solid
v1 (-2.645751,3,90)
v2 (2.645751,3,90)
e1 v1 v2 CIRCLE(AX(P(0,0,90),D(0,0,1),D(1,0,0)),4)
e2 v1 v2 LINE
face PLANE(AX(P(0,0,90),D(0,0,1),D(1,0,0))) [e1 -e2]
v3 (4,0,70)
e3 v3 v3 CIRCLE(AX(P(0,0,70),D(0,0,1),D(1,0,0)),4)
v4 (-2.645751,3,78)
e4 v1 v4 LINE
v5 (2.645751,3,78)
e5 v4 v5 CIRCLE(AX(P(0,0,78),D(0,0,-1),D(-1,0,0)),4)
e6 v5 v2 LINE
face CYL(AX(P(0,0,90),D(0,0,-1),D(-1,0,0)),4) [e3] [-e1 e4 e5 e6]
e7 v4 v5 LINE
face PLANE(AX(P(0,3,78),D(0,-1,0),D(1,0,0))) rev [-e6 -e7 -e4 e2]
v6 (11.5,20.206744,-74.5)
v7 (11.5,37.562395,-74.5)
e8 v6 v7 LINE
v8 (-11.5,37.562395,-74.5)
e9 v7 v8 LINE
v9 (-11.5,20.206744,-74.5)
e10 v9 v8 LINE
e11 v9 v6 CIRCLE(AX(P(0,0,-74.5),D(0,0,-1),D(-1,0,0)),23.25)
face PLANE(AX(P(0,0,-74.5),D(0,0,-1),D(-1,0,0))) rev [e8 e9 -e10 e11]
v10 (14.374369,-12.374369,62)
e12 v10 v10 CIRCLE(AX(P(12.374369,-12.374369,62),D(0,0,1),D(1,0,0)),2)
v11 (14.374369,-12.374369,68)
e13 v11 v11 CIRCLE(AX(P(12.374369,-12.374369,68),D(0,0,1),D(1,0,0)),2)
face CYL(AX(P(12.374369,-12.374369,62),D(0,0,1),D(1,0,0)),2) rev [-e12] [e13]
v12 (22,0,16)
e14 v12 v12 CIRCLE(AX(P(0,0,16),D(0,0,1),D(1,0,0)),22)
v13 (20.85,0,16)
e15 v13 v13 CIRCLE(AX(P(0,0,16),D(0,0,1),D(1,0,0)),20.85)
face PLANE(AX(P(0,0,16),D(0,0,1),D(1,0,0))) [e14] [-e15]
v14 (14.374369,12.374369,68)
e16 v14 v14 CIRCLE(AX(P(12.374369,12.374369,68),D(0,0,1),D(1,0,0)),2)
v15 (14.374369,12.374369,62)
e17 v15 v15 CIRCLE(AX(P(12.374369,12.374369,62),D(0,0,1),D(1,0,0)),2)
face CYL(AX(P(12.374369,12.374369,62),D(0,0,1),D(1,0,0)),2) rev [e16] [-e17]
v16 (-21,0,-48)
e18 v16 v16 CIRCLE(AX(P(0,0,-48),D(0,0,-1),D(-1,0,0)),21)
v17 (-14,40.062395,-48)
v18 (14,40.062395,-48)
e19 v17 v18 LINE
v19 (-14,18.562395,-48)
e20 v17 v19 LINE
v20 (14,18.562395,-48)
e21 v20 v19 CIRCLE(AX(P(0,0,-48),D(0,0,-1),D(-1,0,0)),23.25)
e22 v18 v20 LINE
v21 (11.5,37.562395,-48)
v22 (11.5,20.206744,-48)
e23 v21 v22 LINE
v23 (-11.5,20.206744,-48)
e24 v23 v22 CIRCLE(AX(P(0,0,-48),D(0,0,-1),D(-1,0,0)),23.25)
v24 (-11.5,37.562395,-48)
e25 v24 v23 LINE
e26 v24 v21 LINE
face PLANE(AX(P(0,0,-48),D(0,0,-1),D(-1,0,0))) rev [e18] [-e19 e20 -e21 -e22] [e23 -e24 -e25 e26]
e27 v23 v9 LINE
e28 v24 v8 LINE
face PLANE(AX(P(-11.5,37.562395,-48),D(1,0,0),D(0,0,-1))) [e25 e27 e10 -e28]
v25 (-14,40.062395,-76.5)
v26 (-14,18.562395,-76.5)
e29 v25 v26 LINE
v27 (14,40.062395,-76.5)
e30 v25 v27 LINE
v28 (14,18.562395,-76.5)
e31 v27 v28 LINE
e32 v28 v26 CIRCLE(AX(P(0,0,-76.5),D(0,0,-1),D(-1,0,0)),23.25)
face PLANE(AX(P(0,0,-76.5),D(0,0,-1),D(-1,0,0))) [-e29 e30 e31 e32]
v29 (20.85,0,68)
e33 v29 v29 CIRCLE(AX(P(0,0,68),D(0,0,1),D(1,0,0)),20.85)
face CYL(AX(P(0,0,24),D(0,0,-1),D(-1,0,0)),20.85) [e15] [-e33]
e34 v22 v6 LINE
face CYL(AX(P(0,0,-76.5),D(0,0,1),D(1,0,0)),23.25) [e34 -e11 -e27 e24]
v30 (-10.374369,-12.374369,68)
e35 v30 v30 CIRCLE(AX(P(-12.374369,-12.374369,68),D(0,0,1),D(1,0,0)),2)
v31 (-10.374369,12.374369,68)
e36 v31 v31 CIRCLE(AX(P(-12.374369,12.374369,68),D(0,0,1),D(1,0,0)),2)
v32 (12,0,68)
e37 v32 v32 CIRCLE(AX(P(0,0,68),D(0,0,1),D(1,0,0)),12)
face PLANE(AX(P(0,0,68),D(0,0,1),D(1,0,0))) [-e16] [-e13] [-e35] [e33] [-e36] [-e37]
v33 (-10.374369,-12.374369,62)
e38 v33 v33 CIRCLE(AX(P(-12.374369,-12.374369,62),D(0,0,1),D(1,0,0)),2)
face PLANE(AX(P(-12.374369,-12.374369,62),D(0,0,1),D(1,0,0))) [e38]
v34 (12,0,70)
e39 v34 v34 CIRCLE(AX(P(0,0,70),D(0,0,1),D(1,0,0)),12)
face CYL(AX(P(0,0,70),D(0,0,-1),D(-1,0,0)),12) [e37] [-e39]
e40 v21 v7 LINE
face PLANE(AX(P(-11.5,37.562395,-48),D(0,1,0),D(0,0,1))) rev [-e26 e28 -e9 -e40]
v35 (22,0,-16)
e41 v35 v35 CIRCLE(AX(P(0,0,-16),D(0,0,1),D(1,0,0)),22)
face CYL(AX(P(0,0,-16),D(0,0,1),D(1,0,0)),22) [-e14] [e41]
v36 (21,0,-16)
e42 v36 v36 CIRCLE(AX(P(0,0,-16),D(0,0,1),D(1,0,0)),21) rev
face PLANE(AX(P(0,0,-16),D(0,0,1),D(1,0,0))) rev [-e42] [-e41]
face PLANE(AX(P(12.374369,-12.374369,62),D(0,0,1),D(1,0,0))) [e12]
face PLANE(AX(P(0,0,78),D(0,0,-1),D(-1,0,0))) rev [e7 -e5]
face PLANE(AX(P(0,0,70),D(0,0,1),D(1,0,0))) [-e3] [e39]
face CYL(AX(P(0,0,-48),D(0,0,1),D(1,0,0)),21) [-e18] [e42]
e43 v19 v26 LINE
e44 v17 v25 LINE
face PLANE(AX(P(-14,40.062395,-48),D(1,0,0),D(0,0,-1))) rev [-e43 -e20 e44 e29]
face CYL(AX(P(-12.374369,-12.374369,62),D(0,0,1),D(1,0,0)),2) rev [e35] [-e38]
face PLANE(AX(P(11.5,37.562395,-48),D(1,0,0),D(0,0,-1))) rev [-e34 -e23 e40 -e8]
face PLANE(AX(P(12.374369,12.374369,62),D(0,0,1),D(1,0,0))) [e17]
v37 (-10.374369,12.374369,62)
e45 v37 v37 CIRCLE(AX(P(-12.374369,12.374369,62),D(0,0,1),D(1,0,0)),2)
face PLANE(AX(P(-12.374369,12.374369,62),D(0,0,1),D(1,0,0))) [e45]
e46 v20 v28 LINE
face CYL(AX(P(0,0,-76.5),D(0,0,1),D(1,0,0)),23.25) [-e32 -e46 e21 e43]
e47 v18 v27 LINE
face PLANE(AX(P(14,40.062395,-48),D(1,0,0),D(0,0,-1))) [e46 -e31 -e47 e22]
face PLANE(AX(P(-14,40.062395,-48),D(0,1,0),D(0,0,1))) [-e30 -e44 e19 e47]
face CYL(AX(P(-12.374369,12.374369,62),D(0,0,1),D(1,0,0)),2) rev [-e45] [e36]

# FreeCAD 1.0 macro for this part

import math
import FreeCAD as App
import Part
import Sketcher
from FreeCAD import Vector
Q = App.Units.Quantity


def add_polygon(sketch, points):
    """Adds a closed chain of lines whose ends are joined by coincident constraints."""
    first, n = sketch.GeometryCount, len(points)
    for a, b in zip(points, points[1:] + points[:1]):
        sketch.addGeometry(Part.LineSegment(App.Vector(*a, 0), App.Vector(*b, 0)), False)
    for i in range(n):
        sketch.addConstraint(Sketcher.Constraint("Coincident", first + i, 2, first + (i + 1) % n, 1))

doc = App.newDocument("Part")
body = doc.addObject("PartDesign::Body", "Body")

# Sketch on XY plane
sketch1 = body.newObject("Sketcher::SketchObject", "Sketch")
sketch1.AttachmentSupport = (doc.getObject("XY_Plane"), [""])
sketch1.MapMode = "FlatFace"
sketch1.addGeometry(Part.Circle(Vector(0, 0, 0), Vector(0, 0, 1), 22), False)
sketch1.addConstraint([
    Sketcher.Constraint("Coincident", 0, 3, -1, 1),
    Sketcher.Constraint("Diameter", 0, Q("44 mm")),
])
pad1 = body.newObject("PartDesign::Pad", "Pad")
pad1.Profile = sketch1
pad1.Type = "TwoLengths"
pad1.Length = 16
pad1.Length2 = 16

# Sketch on XY plane
sketch2 = body.newObject("Sketcher::SketchObject", "Sketch001")
sketch2.AttachmentSupport = (doc.getObject("XY_Plane"), [""])
sketch2.MapMode = "FlatFace"
sketch2.AttachmentOffset = App.Placement(Vector(0, 0, 16), App.Rotation())
sketch2.addGeometry(Part.Circle(Vector(0, 0, 0), Vector(0, 0, 1), 21), False)
sketch2.addConstraint([
    Sketcher.Constraint("Coincident", 0, 3, -1, 1),
    Sketcher.Constraint("Diameter", 0, Q("41.7 mm")),
])
pad2 = body.newObject("PartDesign::Pad", "Pad001")
pad2.Profile = sketch2
pad2.Length = 8

# Sketch on XY plane
sketch3 = body.newObject("Sketcher::SketchObject", "Sketch002")
sketch3.AttachmentSupport = (doc.getObject("XY_Plane"), [""])
sketch3.MapMode = "FlatFace"
sketch3.AttachmentOffset = App.Placement(Vector(0, 0, 24), App.Rotation())
sketch3.addGeometry(Part.Circle(Vector(0, 0, 0), Vector(0, 0, 1), 21), False)
sketch3.addConstraint([
    Sketcher.Constraint("Coincident", 0, 3, -1, 1),
    Sketcher.Constraint("Diameter", 0, Q("41.7 mm")),
])
pad3 = body.newObject("PartDesign::Pad", "Pad002")
pad3.Profile = sketch3
pad3.Length = 44

# Sketch on XY plane
sketch4 = body.newObject("Sketcher::SketchObject", "Sketch003")
sketch4.AttachmentSupport = (doc.getObject("XY_Plane"), [""])
sketch4.MapMode = "FlatFace"
sketch4.AttachmentOffset = App.Placement(Vector(0, 0, -16), App.Rotation())
sketch4.addGeometry(Part.Circle(Vector(0, 0, 0), Vector(0, 0, 1), 21), False)
sketch4.addConstraint([
    Sketcher.Constraint("Coincident", 0, 3, -1, 1),
    Sketcher.Constraint("Diameter", 0, Q("42 mm")),
])
pad4 = body.newObject("PartDesign::Pad", "Pad003")
pad4.Profile = sketch4
pad4.Length = 32
pad4.Reversed = True

# Sketch on XY plane
sketch5 = body.newObject("Sketcher::SketchObject", "Sketch004")
sketch5.AttachmentSupport = (doc.getObject("XY_Plane"), [""])
sketch5.MapMode = "FlatFace"
sketch5.AttachmentOffset = App.Placement(Vector(0, 0, -48), App.Rotation())
sketch5.addGeometry(Part.Circle(Vector(0, 0, 0), Vector(0, 0, 1), 23), False)
sketch5.addConstraint([
    Sketcher.Constraint("Coincident", 0, 3, -1, 1),
    Sketcher.Constraint("Diameter", 0, Q("46.5 mm")),
])
pad5 = body.newObject("PartDesign::Pad", "Pad004")
pad5.Profile = sketch5
pad5.Length = 28.5
pad5.Reversed = True

# Sketch on XY plane
sketch6 = body.newObject("Sketcher::SketchObject", "Sketch005")
sketch6.AttachmentSupport = (doc.getObject("XY_Plane"), [""])
sketch6.MapMode = "FlatFace"
sketch6.AttachmentOffset = App.Placement(Vector(0, 0, -76.5), App.Rotation())
sketch6.addGeometry([
    Part.LineSegment(Vector(-14, 40.1, 0), Vector(14, 40.1, 0)),  # 0
    Part.LineSegment(Vector(14, 40.1, 0), Vector(14, 18.6, 0)),  # 1
    Part.ArcOfCircle(Part.Circle(Vector(0, 0, 0), Vector(0, 0, 1), 23.3), math.radians(52.98), math.radians(60.36)),  # 2
    Part.LineSegment(Vector(11.5, 20.2, 0), Vector(11.5, 37.6, 0)),  # 3
    Part.LineSegment(Vector(11.5, 37.6, 0), Vector(-11.5, 37.6, 0)),  # 4
    Part.LineSegment(Vector(-11.5, 37.6, 0), Vector(-11.5, 20.2, 0)),  # 5
    Part.ArcOfCircle(Part.Circle(Vector(0, 0, 0), Vector(0, 0, 1), 23.3), math.radians(119.64), math.radians(127.02)),  # 6
    Part.LineSegment(Vector(-14, 18.6, 0), Vector(-14, 40.1, 0)),  # 7
], False)
sketch6.addConstraint([
    Sketcher.Constraint("Coincident", 0, 2, 1, 1),
    Sketcher.Constraint("Coincident", 1, 2, 2, 1),
    Sketcher.Constraint("Coincident", 2, 2, 3, 1),
    Sketcher.Constraint("Coincident", 3, 2, 4, 1),
    Sketcher.Constraint("Coincident", 4, 2, 5, 1),
    Sketcher.Constraint("Coincident", 5, 2, 6, 1),
    Sketcher.Constraint("Coincident", 6, 2, 7, 1),
    Sketcher.Constraint("Coincident", 7, 2, 0, 1),
    Sketcher.Constraint("Horizontal", 0),
    Sketcher.Constraint("Vertical", 1),
    Sketcher.Constraint("Vertical", 3),
    Sketcher.Constraint("Horizontal", 4),
    Sketcher.Constraint("Vertical", 5),
    Sketcher.Constraint("Vertical", 7),
    Sketcher.Constraint("Coincident", 2, 3, -1, 1),
    Sketcher.Constraint("Coincident", 6, 3, -1, 1),
    Sketcher.Constraint("Equal", 2, 6),
    Sketcher.Constraint("Horizontal", 2, 2, 5, 2),
    Sketcher.Constraint("Horizontal", 1, 2, 6, 2),
    Sketcher.Constraint("DistanceX", 0, 1, 0, 2, Q("28 mm")),
    Sketcher.Constraint("DistanceX", 4, 2, 4, 1, Q("23 mm")),
    Sketcher.Constraint("Radius", 2, Q("23.25 mm")),
    Sketcher.Constraint("DistanceY", 1, 2, 1, 1, Q("21.5 mm")),
    Sketcher.Constraint("DistanceY", 1, 2, 3, 2, Q("19 mm")),
])
pad6 = body.newObject("PartDesign::Pad", "Pad005")
pad6.Profile = sketch6
pad6.Length = 28.5

# Sketch on XY plane
sketch7 = body.newObject("Sketcher::SketchObject", "Sketch006")
sketch7.AttachmentSupport = (doc.getObject("XY_Plane"), [""])
sketch7.MapMode = "FlatFace"
sketch7.AttachmentOffset = App.Placement(Vector(0, 0, 68), App.Rotation())
sketch7.addGeometry(Part.Circle(Vector(0, 0, 0), Vector(0, 0, 1), 12), False)
sketch7.addConstraint([
    Sketcher.Constraint("Coincident", 0, 3, -1, 1),
    Sketcher.Constraint("Diameter", 0, Q("24 mm")),
])
pad7 = body.newObject("PartDesign::Pad", "Pad006")
pad7.Profile = sketch7
pad7.Length = 2

# Sketch on XY plane
sketch8 = body.newObject("Sketcher::SketchObject", "Sketch007")
sketch8.AttachmentSupport = (doc.getObject("XY_Plane"), [""])
sketch8.MapMode = "FlatFace"
sketch8.AttachmentOffset = App.Placement(Vector(0, 0, 68), App.Rotation())
sketch8.addGeometry([
    Part.Circle(Vector(12.4, 12.4, 0), Vector(0, 0, 1), 2),
    Part.Circle(Vector(12.4, -12.4, 0), Vector(0, 0, 1), 2),
    Part.Circle(Vector(-12.4, -12.4, 0), Vector(0, 0, 1), 2),
    Part.Circle(Vector(-12.4, 12.4, 0), Vector(0, 0, 1), 2),
], False)
sketch8.addConstraint([
    Sketcher.Constraint("Equal", 0, 1),
    Sketcher.Constraint("Equal", 1, 2),
    Sketcher.Constraint("Equal", 2, 3),
    Sketcher.Constraint("Symmetric", 0, 3, 2, 3, -1, 1),
    Sketcher.Constraint("Symmetric", 1, 3, 3, 3, -1, 1),
    Sketcher.Constraint("Symmetric", 1, 3, 2, 3, -2),
    Sketcher.Constraint("Diameter", 0, Q("4 mm")),
    Sketcher.Constraint("DistanceX", -1, 1, 0, 3, Q("12.374369 mm")),
    Sketcher.Constraint("DistanceY", -1, 1, 0, 3, Q("12.374369 mm")),
])
pocket1 = body.newObject("PartDesign::Pocket", "Pocket")
pocket1.Profile = sketch8
pocket1.Length = 6

# Sketch on XY plane
sketch9 = body.newObject("Sketcher::SketchObject", "Sketch008")
sketch9.AttachmentSupport = (doc.getObject("XY_Plane"), [""])
sketch9.MapMode = "FlatFace"
sketch9.AttachmentOffset = App.Placement(Vector(0, 0, -76.5), App.Rotation())
add_polygon(sketch9, [(12, 38), (12, 17), (-12, 17), (-12, 38)])  # lines 0-3
sketch9.addConstraint([
    Sketcher.Constraint("Vertical", 0),
    Sketcher.Constraint("Horizontal", 1),
    Sketcher.Constraint("Vertical", 2),
    Sketcher.Constraint("Horizontal", 3),
    Sketcher.Constraint("DistanceX", 1, 2, 1, 1, Q("24.12025 mm")),
    Sketcher.Constraint("DistanceY", 0, 2, 0, 1, Q("20.982118 mm")),
    Sketcher.Constraint("DistanceY", -1, 1, 0, 2, Q("17.146661 mm")),
    Sketcher.Constraint("DistanceX", -1, 1, 0, 2, Q("12.060125 mm")),
])
pad8 = body.newObject("PartDesign::Pad", "Pad007")
pad8.Profile = sketch9
pad8.Length = 2

# Sketch on XY plane
sketch10 = body.newObject("Sketcher::SketchObject", "Sketch009")
sketch10.AttachmentSupport = (doc.getObject("XY_Plane"), [""])
sketch10.MapMode = "FlatFace"
sketch10.AttachmentOffset = App.Placement(Vector(0, 0, 70), App.Rotation())
sketch10.addGeometry(Part.Circle(Vector(0, 0, 0), Vector(0, 0, 1), 4), False)
sketch10.addConstraint([
    Sketcher.Constraint("Coincident", 0, 3, -1, 1),
    Sketcher.Constraint("Diameter", 0, Q("8 mm")),
])
pad9 = body.newObject("PartDesign::Pad", "Pad008")
pad9.Profile = sketch10
pad9.Length = 20

# Sketch on XY plane
sketch11 = body.newObject("Sketcher::SketchObject", "Sketch010")
sketch11.AttachmentSupport = (doc.getObject("XY_Plane"), [""])
sketch11.MapMode = "FlatFace"
sketch11.AttachmentOffset = App.Placement(Vector(0, 0, 90), App.Rotation())
add_polygon(sketch11, [(-4, 3), (4.1, 3), (4.1, 4.2), (-4, 4.2)])  # lines 0-3
sketch11.addConstraint([
    Sketcher.Constraint("Horizontal", 0),
    Sketcher.Constraint("Vertical", 1),
    Sketcher.Constraint("Horizontal", 2),
    Sketcher.Constraint("Vertical", 3),
    Sketcher.Constraint("DistanceY", -1, 1, 0, 2, Q("3 mm")),
    Sketcher.Constraint("DistanceX", 0, 1, 0, 2, Q("8.032594 mm")),
    Sketcher.Constraint("DistanceY", 1, 1, 1, 2, Q("1.192756 mm")),
    Sketcher.Constraint("DistanceX", 2, 2, -1, 1, Q("3.981731 mm")),
])
pocket2 = body.newObject("PartDesign::Pocket", "Pocket001")
pocket2.Profile = sketch11
pocket2.Length = 12

doc.recompute()
